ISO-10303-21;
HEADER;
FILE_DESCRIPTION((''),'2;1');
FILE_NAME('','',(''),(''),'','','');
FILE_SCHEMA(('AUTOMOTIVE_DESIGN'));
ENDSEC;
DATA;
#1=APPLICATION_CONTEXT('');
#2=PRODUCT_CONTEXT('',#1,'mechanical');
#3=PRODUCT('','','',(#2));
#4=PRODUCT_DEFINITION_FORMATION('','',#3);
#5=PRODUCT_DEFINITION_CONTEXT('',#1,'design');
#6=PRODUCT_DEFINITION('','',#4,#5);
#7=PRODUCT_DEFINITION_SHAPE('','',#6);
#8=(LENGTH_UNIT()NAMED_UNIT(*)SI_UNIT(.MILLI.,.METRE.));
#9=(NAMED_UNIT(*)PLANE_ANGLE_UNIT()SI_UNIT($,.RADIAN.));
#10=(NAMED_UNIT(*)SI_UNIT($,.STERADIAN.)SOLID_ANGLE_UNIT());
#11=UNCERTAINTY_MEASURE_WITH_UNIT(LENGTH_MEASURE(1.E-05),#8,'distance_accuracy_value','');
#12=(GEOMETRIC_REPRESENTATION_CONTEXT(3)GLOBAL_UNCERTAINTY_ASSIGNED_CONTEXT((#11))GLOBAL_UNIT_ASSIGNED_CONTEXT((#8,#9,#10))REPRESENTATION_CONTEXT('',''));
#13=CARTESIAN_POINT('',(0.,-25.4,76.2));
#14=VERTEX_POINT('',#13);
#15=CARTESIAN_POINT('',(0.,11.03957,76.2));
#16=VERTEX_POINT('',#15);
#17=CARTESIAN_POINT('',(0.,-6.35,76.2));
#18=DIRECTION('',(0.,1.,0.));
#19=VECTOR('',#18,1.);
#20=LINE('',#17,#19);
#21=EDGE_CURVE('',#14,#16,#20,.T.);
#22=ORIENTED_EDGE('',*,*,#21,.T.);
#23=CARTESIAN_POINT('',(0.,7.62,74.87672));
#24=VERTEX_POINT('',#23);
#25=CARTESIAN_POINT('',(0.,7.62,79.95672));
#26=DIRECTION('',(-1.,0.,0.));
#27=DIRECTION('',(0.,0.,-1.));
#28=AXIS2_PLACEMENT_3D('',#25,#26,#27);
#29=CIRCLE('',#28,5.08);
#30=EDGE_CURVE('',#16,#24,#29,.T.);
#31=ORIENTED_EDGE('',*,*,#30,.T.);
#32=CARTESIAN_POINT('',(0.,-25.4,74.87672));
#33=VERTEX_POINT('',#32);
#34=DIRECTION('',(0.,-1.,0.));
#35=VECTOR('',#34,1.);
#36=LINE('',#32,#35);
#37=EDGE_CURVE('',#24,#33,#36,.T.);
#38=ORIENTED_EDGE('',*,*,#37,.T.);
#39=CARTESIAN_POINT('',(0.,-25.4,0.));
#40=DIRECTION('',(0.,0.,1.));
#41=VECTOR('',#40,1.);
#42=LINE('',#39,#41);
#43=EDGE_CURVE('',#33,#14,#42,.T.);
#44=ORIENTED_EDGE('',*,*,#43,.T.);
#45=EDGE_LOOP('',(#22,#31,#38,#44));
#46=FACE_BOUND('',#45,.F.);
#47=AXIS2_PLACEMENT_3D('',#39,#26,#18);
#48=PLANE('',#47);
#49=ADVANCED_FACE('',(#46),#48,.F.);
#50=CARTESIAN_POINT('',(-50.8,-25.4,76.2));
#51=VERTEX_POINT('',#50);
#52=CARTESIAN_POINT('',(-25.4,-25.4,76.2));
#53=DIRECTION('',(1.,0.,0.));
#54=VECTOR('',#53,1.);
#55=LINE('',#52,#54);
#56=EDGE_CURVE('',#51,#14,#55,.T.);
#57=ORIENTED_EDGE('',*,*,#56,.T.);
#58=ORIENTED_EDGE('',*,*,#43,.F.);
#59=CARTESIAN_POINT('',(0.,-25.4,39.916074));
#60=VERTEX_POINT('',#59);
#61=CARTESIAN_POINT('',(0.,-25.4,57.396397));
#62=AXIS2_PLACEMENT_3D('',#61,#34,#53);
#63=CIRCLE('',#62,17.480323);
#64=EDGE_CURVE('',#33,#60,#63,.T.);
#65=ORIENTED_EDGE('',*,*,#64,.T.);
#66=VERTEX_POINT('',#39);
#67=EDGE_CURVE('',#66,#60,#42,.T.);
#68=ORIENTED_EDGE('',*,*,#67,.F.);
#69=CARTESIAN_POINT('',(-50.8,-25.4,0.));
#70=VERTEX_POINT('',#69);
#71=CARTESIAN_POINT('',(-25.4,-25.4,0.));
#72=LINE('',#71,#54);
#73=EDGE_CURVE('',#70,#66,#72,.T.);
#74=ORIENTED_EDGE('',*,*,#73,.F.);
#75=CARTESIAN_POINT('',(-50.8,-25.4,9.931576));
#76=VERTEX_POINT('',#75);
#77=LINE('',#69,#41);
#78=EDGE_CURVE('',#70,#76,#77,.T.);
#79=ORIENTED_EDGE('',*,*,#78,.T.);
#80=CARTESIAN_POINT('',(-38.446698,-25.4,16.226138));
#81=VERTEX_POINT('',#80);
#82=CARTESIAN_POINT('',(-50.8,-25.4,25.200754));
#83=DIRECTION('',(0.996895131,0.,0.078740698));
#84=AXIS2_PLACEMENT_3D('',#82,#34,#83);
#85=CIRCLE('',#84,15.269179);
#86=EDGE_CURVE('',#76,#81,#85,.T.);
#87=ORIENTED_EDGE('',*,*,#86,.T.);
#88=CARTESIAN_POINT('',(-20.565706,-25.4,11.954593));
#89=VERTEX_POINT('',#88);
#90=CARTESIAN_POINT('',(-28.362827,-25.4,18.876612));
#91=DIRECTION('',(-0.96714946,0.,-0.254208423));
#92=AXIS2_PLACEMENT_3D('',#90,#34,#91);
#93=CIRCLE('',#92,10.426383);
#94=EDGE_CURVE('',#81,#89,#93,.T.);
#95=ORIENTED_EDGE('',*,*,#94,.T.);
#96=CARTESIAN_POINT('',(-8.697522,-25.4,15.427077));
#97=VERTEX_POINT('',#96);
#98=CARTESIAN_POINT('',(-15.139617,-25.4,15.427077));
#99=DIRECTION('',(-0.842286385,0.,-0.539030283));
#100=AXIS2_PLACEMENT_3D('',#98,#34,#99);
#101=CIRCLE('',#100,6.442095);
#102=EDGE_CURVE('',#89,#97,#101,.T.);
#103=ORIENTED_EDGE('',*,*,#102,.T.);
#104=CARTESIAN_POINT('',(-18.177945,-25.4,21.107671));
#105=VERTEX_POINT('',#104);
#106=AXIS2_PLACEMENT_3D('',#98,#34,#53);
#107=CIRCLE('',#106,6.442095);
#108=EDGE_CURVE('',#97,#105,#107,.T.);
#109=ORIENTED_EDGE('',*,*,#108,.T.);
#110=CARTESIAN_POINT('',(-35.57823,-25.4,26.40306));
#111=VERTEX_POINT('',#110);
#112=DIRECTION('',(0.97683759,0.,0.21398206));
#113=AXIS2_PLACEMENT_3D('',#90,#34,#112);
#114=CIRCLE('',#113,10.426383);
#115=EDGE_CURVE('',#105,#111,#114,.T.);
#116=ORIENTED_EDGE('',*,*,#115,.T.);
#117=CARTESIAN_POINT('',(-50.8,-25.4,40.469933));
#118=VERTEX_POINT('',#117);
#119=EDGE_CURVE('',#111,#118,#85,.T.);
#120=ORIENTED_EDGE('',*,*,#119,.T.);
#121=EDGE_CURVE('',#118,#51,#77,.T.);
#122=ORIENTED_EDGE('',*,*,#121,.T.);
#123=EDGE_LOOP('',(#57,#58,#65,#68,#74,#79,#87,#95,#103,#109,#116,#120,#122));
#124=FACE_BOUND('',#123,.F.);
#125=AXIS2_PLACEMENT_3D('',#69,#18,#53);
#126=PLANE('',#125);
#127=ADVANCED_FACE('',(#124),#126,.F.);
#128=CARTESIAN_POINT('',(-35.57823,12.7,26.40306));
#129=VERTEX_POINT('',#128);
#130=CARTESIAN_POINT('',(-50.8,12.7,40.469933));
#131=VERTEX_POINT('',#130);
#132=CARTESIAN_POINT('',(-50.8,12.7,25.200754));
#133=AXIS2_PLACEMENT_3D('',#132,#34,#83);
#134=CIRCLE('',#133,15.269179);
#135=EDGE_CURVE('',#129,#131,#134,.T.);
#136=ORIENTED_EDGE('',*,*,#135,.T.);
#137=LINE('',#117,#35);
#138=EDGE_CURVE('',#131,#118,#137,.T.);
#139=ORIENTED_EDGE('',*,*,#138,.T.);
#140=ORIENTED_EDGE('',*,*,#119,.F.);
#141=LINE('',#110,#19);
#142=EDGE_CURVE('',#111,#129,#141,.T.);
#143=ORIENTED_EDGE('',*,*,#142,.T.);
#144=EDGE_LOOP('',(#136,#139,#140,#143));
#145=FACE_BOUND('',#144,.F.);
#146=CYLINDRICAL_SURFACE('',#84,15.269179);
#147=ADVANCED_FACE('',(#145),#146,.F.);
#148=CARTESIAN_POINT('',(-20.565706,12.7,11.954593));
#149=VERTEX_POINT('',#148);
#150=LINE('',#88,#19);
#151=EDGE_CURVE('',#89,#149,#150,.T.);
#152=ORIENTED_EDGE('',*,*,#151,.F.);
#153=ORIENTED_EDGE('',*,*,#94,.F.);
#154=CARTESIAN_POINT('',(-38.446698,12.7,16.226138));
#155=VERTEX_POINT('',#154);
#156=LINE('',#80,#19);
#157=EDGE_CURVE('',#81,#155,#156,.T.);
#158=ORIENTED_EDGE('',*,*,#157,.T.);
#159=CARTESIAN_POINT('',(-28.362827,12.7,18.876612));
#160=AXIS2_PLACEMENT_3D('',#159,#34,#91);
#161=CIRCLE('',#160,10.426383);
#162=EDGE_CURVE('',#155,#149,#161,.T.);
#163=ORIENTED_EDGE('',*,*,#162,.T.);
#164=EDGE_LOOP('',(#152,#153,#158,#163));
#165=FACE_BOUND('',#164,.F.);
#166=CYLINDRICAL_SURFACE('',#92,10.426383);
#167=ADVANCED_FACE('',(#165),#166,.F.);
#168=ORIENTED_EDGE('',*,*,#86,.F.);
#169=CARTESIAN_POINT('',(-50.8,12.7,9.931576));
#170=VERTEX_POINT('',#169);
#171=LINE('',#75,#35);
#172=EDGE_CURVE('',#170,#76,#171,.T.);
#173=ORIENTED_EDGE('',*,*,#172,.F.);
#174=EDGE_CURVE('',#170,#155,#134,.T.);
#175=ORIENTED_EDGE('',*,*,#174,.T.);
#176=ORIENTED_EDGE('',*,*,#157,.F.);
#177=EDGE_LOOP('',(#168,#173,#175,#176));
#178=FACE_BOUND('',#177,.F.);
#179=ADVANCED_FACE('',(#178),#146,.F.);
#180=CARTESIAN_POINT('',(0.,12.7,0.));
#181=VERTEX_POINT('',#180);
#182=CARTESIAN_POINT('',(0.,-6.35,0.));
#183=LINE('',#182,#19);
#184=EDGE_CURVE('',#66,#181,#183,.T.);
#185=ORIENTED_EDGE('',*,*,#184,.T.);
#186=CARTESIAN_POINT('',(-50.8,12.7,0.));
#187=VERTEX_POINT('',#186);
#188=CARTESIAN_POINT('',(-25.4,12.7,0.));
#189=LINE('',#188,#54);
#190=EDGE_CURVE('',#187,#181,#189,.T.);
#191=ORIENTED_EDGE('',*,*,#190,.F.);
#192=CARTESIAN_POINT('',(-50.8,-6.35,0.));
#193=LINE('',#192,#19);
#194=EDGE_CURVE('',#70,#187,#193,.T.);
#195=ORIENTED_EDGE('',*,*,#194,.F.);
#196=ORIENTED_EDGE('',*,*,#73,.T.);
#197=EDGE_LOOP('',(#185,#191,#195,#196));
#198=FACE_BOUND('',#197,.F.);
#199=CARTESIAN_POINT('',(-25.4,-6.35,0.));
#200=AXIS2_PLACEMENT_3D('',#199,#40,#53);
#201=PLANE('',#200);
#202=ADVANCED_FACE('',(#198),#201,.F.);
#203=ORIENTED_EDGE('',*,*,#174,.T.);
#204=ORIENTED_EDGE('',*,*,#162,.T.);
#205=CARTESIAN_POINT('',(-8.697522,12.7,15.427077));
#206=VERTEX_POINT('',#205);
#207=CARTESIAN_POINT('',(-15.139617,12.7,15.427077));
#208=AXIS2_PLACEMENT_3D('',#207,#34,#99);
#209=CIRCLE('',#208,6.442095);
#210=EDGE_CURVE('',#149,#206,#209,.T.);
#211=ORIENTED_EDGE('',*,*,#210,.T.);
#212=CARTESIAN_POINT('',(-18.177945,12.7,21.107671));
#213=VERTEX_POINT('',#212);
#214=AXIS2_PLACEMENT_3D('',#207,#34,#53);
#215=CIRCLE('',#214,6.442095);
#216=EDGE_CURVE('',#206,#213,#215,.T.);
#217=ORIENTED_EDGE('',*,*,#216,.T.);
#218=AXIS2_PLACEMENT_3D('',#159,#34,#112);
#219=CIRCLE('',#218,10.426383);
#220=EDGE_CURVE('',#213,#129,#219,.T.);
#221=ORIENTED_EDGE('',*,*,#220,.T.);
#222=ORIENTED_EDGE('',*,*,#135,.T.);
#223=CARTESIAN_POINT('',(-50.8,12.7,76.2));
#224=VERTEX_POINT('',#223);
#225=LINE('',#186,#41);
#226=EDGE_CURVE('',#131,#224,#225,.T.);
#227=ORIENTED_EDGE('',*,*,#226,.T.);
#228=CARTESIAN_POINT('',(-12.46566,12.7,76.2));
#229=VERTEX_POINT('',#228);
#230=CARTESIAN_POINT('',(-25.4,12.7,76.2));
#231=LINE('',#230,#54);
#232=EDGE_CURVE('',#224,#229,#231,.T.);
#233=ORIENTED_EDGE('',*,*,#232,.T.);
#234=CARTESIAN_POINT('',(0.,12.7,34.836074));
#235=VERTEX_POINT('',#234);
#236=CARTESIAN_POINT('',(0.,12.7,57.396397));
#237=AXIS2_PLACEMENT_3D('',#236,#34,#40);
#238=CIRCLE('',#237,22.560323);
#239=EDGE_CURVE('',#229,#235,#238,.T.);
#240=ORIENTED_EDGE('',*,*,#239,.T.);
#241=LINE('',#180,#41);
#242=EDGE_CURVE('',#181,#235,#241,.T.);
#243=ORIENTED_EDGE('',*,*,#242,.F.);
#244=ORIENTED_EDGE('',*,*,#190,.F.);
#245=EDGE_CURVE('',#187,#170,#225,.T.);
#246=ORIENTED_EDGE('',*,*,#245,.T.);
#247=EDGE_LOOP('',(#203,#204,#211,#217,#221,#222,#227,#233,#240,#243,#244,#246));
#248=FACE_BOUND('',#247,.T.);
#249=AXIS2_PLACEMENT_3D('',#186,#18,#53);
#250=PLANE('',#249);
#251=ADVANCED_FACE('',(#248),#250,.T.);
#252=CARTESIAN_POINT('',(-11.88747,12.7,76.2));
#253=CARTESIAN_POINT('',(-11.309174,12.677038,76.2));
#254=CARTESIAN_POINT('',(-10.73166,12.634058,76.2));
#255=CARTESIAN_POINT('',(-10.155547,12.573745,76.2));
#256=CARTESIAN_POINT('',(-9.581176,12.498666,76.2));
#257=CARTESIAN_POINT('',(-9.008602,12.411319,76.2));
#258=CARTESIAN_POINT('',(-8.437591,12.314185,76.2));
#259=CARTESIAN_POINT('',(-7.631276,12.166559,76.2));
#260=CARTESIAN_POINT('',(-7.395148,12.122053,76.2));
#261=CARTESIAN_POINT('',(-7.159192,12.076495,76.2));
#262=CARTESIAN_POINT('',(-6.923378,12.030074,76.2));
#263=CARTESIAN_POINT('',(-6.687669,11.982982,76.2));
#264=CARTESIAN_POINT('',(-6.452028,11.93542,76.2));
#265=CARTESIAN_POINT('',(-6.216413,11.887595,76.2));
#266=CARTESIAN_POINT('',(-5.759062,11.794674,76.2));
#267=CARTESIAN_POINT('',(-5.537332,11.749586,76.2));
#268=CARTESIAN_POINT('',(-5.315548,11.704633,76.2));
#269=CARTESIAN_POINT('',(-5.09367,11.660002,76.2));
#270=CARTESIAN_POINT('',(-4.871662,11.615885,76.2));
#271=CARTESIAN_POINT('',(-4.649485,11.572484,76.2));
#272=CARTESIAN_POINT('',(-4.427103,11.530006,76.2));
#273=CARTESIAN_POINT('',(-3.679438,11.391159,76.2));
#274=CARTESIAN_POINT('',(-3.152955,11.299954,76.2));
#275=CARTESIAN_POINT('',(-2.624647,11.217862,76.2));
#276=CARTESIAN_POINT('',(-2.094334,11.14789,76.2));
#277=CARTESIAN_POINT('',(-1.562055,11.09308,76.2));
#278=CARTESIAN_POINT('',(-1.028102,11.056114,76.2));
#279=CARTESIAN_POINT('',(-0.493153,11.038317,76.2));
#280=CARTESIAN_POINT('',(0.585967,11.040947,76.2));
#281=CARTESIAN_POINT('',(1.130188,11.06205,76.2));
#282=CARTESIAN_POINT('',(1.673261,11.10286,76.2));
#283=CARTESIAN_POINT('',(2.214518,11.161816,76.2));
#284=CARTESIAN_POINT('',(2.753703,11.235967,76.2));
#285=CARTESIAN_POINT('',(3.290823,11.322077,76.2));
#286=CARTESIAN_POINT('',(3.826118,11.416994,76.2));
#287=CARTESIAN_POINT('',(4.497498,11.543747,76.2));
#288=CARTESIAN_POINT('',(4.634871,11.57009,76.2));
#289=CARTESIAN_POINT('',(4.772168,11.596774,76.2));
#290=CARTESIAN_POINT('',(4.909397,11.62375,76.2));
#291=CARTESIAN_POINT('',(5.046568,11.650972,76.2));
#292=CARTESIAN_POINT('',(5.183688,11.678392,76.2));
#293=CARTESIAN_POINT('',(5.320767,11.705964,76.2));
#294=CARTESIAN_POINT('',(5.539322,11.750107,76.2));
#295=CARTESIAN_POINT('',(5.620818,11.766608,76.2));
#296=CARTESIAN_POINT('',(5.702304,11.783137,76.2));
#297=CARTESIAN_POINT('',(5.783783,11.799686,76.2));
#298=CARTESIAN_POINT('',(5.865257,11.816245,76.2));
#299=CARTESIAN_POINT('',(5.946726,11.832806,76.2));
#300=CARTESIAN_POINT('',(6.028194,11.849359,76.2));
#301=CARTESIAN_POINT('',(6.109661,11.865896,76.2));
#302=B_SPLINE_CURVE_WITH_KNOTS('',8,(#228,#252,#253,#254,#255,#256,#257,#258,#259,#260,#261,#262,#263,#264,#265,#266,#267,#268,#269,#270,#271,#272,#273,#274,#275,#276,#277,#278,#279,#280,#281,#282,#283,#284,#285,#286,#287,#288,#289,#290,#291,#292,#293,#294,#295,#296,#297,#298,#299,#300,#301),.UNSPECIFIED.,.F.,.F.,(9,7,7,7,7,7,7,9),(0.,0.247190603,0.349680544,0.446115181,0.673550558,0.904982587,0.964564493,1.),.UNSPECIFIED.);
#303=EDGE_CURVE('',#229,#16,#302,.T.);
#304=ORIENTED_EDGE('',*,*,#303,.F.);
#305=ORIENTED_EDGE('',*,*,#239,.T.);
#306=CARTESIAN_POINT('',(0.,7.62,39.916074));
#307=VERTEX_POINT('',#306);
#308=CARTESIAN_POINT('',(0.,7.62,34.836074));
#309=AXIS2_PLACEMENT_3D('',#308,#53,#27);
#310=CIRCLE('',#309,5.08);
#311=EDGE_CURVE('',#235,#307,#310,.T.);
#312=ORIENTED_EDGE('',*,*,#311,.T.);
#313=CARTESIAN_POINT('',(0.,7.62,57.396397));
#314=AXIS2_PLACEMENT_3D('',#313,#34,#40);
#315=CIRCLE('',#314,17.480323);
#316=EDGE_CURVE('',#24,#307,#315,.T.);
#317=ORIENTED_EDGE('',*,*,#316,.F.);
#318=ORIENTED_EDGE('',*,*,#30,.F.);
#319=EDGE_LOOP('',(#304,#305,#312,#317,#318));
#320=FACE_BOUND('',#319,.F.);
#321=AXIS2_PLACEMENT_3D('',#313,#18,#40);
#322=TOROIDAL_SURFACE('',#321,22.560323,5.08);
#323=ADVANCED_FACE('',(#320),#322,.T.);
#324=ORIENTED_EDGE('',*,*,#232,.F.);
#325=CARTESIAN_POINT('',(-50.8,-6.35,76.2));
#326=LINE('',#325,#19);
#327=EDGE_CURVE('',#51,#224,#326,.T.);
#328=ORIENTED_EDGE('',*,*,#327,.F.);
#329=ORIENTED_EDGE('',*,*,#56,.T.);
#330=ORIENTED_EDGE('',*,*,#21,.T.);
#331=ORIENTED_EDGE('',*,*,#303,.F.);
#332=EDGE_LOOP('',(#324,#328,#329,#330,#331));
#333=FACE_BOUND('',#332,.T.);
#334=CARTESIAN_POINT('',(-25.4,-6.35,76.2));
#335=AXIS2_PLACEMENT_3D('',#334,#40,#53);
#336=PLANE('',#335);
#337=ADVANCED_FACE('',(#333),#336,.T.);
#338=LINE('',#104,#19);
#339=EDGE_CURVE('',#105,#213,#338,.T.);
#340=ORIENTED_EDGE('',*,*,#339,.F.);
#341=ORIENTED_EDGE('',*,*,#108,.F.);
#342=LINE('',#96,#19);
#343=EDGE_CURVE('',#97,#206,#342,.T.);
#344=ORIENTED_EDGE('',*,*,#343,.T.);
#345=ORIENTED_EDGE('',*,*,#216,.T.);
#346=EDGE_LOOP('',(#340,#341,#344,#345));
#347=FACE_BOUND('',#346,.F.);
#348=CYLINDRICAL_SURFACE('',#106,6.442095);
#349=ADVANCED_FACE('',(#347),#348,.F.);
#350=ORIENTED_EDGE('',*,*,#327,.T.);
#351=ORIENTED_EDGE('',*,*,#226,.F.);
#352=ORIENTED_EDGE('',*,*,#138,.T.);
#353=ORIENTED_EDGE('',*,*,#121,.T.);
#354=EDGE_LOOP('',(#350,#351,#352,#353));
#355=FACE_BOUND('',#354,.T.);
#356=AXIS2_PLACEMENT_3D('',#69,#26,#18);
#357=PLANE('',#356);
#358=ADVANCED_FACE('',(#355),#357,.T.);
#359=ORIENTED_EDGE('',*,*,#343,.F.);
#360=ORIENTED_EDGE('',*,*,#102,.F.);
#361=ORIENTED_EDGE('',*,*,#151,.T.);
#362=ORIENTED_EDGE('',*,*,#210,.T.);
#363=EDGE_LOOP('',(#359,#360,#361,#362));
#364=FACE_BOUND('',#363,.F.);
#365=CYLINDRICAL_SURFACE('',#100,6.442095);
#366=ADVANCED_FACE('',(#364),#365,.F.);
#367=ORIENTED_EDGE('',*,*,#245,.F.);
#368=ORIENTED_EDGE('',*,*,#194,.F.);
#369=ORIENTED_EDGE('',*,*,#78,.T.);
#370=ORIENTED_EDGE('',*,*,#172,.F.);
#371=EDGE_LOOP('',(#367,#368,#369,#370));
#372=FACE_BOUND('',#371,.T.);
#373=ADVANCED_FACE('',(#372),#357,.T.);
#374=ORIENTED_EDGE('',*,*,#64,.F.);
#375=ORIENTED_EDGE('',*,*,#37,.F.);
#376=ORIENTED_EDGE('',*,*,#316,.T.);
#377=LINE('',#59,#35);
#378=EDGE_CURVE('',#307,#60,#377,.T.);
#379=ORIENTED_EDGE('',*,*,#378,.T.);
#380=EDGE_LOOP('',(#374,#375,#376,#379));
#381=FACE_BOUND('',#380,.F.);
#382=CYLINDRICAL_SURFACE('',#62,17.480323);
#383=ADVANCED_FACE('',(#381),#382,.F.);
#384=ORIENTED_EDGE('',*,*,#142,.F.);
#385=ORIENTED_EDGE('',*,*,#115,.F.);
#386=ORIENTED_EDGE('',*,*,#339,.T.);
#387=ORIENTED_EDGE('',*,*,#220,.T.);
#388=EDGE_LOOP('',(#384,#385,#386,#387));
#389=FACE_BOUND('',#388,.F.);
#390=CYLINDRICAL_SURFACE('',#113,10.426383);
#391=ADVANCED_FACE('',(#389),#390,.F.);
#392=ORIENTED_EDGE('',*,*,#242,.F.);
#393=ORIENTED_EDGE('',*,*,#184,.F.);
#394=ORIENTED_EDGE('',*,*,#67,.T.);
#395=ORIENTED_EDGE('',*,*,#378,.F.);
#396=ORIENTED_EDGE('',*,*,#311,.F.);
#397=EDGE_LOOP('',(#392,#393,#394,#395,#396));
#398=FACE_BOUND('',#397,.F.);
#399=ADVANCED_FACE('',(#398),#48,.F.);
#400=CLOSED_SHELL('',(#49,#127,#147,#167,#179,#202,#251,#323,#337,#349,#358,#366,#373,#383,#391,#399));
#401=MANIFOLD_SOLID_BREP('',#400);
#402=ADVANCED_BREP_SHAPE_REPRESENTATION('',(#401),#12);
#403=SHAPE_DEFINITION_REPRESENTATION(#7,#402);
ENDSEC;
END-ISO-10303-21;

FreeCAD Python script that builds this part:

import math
import FreeCAD as App
import Part
import Sketcher
Q = App.Units.Quantity


def edges_at(feature, points):
    """Names of the edges that pass closest to the given points."""
    edges = feature.Shape.Edges
    near = lambda p: min(range(len(edges)), key=lambda i: edges[i].distToShape(Part.Vertex(*p))[0])
    return sorted({f"Edge{near(p) + 1}" for p in points})

doc = App.newDocument("Part")
params = doc.addObject("Spreadsheet::Sheet", "Params")
for row, (alias, value) in enumerate([
    ("sketch1_width", "2 in"),
    ("sketch1_height", "1.5 in"),
    ("pad1_length", "3 in"),
    ("fillet_radius", "0.2 in"),
], start=1):
    params.set(f"A{row}", alias)
    params.set(f"B{row}", "=" + value)
    params.setAlias(f"B{row}", alias)

body = doc.addObject("PartDesign::Body", "Body")

# Sketch on XY plane
sketch1 = doc.addObject("Sketcher::SketchObject", "Sketch")
body.addObject(sketch1)
sketch1.AttachmentSupport = (doc.XY_Plane, [""])
sketch1.MapMode = "FlatFace"
sketch1.addGeometry(Part.LineSegment(App.Vector(-50.8, 12.7, 0), App.Vector(-50.8, -25.4, 0)), False)
sketch1.addGeometry(Part.LineSegment(App.Vector(-50.8, -25.4, 0), App.Vector(0, -25.4, 0)), False)
sketch1.addGeometry(Part.LineSegment(App.Vector(0, -25.4, 0), App.Vector(0, 12.7, 0)), False)
sketch1.addGeometry(Part.LineSegment(App.Vector(0, 12.7, 0), App.Vector(-50.8, 12.7, 0)), False)
sketch1.addConstraint(Sketcher.Constraint("Coincident", 0, 2, 1, 1))
sketch1.addConstraint(Sketcher.Constraint("Coincident", 1, 2, 2, 1))
sketch1.addConstraint(Sketcher.Constraint("Coincident", 2, 2, 3, 1))
sketch1.addConstraint(Sketcher.Constraint("Coincident", 3, 2, 0, 1))
sketch1.addConstraint(Sketcher.Constraint("Vertical", 0))
sketch1.addConstraint(Sketcher.Constraint("Horizontal", 1))
sketch1.addConstraint(Sketcher.Constraint("Vertical", 2))
sketch1.addConstraint(Sketcher.Constraint("Horizontal", 3))
sketch1.addConstraint(Sketcher.Constraint("PointOnObject", 1, 2, -2))
sketch1.addConstraint(Sketcher.Constraint("DistanceX", 1, 1, 1, 2, Q("2 in")))
sketch1.addConstraint(Sketcher.Constraint("DistanceY", 0, 2, 0, 1, Q("1.5 in")))
sketch1.addConstraint(Sketcher.Constraint("DistanceY", 0, 2, -1, 1, Q("1 in")))
sketch1.setExpression("Constraints[9]", "Params.sketch1_width")
sketch1.setExpression("Constraints[10]", "Params.sketch1_height")
pad1 = doc.addObject("PartDesign::Pad", "Pad")
body.addObject(pad1)
pad1.Profile = sketch1
pad1.setExpression("Length", "Params.pad1_length")

# Sketch on XZ plane
sketch2 = doc.addObject("Sketcher::SketchObject", "Sketch001")
body.addObject(sketch2)
sketch2.AttachmentSupport = (doc.XZ_Plane, [""])
sketch2.MapMode = "FlatFace"
sketch2.AttachmentOffset = App.Placement(App.Vector(0, 0, 1 * 25.4), App.Rotation())
sketch2.addGeometry(Part.ArcOfCircle(Part.Circle(App.Vector(-28.362827, 18.876612, 0), App.Vector(0, 0, 1), 10.426383), math.radians(-165.273314), math.radians(-41.597577)), False)
sketch2.addGeometry(Part.ArcOfCircle(Part.Circle(App.Vector(-15.139617, 15.427077, 0), App.Vector(0, 0, 1), 6.442095), math.radians(-147.38235), math.radians(0)), False)
sketch2.addGeometry(Part.ArcOfCircle(Part.Circle(App.Vector(-15.139617, 15.427077, 0), App.Vector(0, 0, 1), 6.442095), math.radians(0), math.radians(118.140587)), False)
sketch2.addGeometry(Part.ArcOfCircle(Part.Circle(App.Vector(-28.362827, 18.876612, 0), App.Vector(0, 0, 1), 10.426383), math.radians(12.355814), math.radians(133.791269)), False)
sketch2.addGeometry(Part.ArcOfCircle(Part.Circle(App.Vector(-50.8, 25.200754, 0), App.Vector(0, 0, 1), 15.269179), math.radians(4.516185), math.radians(324.00177)), False)
sketch2.addGeometry(Part.Circle(App.Vector(0, 57.396397, 0), App.Vector(0, 0, 1), 17.480323), False)
sketch2.addConstraint(Sketcher.Constraint("Coincident", 0, 2, 1, 1))
sketch2.addConstraint(Sketcher.Constraint("Tangent", 1, 2, 2, 1))
sketch2.addConstraint(Sketcher.Constraint("Coincident", 2, 2, 3, 1))
sketch2.addConstraint(Sketcher.Constraint("Coincident", 3, 2, 4, 1))
sketch2.addConstraint(Sketcher.Constraint("Coincident", 4, 2, 0, 1))
sketch2.addConstraint(Sketcher.Constraint("Coincident", 3, 3, 0, 3))
sketch2.addConstraint(Sketcher.Constraint("Equal", 1, 2))
sketch2.addConstraint(Sketcher.Constraint("Equal", 0, 3))
sketch2.addConstraint(Sketcher.Constraint("PointOnObject", 5, 3, -2))
sketch2.addConstraint(Sketcher.Constraint("Horizontal", 2, 3, 1, 2))
sketch2.addConstraint(Sketcher.Constraint("DistanceX", 4, 3, -1, 1, Q("2 in")))
sketch2.addConstraint(Sketcher.Constraint("Radius", 4, Q("15.269179 mm")))
sketch2.addConstraint(Sketcher.Constraint("Diameter", 5, Q("34.960645 mm")))
sketch2.addConstraint(Sketcher.Constraint("Radius", 0, Q("10.426383 mm")))
sketch2.addConstraint(Sketcher.Constraint("Radius", 1, Q("6.442095 mm")))
sketch2.addConstraint(Sketcher.Constraint("DistanceY", -1, 1, 2, 2, Q("21.107671 mm")))
sketch2.addConstraint(Sketcher.Constraint("DistanceX", 3, 2, -1, 1, Q("35.57823 mm")))
sketch2.addConstraint(Sketcher.Constraint("DistanceY", -1, 1, 3, 2, Q("26.40306 mm")))
sketch2.addConstraint(Sketcher.Constraint("DistanceX", 0, 3, 1, 3, Q("13.22321 mm")))
sketch2.addConstraint(Sketcher.Constraint("DistanceY", 1, 3, 5, 3, Q("41.96932 mm")))
sketch2.addConstraint(Sketcher.Constraint("DistanceX", 0, 2, 1, 3, Q("5.426089 mm")))
pocket1 = doc.addObject("PartDesign::Pocket", "Pocket")
body.addObject(pocket1)
pocket1.Profile = sketch2
pocket1.Type = "ThroughAll"
doc.recompute()

fillet = doc.addObject("PartDesign::Fillet", "Fillet")
body.addObject(fillet)
fillet.Base = (pocket1, edges_at(pocket1, [(-17.48, 12.7, 57.396)]))
fillet.setExpression("Radius", "Params.fillet_radius")

doc.recompute()
